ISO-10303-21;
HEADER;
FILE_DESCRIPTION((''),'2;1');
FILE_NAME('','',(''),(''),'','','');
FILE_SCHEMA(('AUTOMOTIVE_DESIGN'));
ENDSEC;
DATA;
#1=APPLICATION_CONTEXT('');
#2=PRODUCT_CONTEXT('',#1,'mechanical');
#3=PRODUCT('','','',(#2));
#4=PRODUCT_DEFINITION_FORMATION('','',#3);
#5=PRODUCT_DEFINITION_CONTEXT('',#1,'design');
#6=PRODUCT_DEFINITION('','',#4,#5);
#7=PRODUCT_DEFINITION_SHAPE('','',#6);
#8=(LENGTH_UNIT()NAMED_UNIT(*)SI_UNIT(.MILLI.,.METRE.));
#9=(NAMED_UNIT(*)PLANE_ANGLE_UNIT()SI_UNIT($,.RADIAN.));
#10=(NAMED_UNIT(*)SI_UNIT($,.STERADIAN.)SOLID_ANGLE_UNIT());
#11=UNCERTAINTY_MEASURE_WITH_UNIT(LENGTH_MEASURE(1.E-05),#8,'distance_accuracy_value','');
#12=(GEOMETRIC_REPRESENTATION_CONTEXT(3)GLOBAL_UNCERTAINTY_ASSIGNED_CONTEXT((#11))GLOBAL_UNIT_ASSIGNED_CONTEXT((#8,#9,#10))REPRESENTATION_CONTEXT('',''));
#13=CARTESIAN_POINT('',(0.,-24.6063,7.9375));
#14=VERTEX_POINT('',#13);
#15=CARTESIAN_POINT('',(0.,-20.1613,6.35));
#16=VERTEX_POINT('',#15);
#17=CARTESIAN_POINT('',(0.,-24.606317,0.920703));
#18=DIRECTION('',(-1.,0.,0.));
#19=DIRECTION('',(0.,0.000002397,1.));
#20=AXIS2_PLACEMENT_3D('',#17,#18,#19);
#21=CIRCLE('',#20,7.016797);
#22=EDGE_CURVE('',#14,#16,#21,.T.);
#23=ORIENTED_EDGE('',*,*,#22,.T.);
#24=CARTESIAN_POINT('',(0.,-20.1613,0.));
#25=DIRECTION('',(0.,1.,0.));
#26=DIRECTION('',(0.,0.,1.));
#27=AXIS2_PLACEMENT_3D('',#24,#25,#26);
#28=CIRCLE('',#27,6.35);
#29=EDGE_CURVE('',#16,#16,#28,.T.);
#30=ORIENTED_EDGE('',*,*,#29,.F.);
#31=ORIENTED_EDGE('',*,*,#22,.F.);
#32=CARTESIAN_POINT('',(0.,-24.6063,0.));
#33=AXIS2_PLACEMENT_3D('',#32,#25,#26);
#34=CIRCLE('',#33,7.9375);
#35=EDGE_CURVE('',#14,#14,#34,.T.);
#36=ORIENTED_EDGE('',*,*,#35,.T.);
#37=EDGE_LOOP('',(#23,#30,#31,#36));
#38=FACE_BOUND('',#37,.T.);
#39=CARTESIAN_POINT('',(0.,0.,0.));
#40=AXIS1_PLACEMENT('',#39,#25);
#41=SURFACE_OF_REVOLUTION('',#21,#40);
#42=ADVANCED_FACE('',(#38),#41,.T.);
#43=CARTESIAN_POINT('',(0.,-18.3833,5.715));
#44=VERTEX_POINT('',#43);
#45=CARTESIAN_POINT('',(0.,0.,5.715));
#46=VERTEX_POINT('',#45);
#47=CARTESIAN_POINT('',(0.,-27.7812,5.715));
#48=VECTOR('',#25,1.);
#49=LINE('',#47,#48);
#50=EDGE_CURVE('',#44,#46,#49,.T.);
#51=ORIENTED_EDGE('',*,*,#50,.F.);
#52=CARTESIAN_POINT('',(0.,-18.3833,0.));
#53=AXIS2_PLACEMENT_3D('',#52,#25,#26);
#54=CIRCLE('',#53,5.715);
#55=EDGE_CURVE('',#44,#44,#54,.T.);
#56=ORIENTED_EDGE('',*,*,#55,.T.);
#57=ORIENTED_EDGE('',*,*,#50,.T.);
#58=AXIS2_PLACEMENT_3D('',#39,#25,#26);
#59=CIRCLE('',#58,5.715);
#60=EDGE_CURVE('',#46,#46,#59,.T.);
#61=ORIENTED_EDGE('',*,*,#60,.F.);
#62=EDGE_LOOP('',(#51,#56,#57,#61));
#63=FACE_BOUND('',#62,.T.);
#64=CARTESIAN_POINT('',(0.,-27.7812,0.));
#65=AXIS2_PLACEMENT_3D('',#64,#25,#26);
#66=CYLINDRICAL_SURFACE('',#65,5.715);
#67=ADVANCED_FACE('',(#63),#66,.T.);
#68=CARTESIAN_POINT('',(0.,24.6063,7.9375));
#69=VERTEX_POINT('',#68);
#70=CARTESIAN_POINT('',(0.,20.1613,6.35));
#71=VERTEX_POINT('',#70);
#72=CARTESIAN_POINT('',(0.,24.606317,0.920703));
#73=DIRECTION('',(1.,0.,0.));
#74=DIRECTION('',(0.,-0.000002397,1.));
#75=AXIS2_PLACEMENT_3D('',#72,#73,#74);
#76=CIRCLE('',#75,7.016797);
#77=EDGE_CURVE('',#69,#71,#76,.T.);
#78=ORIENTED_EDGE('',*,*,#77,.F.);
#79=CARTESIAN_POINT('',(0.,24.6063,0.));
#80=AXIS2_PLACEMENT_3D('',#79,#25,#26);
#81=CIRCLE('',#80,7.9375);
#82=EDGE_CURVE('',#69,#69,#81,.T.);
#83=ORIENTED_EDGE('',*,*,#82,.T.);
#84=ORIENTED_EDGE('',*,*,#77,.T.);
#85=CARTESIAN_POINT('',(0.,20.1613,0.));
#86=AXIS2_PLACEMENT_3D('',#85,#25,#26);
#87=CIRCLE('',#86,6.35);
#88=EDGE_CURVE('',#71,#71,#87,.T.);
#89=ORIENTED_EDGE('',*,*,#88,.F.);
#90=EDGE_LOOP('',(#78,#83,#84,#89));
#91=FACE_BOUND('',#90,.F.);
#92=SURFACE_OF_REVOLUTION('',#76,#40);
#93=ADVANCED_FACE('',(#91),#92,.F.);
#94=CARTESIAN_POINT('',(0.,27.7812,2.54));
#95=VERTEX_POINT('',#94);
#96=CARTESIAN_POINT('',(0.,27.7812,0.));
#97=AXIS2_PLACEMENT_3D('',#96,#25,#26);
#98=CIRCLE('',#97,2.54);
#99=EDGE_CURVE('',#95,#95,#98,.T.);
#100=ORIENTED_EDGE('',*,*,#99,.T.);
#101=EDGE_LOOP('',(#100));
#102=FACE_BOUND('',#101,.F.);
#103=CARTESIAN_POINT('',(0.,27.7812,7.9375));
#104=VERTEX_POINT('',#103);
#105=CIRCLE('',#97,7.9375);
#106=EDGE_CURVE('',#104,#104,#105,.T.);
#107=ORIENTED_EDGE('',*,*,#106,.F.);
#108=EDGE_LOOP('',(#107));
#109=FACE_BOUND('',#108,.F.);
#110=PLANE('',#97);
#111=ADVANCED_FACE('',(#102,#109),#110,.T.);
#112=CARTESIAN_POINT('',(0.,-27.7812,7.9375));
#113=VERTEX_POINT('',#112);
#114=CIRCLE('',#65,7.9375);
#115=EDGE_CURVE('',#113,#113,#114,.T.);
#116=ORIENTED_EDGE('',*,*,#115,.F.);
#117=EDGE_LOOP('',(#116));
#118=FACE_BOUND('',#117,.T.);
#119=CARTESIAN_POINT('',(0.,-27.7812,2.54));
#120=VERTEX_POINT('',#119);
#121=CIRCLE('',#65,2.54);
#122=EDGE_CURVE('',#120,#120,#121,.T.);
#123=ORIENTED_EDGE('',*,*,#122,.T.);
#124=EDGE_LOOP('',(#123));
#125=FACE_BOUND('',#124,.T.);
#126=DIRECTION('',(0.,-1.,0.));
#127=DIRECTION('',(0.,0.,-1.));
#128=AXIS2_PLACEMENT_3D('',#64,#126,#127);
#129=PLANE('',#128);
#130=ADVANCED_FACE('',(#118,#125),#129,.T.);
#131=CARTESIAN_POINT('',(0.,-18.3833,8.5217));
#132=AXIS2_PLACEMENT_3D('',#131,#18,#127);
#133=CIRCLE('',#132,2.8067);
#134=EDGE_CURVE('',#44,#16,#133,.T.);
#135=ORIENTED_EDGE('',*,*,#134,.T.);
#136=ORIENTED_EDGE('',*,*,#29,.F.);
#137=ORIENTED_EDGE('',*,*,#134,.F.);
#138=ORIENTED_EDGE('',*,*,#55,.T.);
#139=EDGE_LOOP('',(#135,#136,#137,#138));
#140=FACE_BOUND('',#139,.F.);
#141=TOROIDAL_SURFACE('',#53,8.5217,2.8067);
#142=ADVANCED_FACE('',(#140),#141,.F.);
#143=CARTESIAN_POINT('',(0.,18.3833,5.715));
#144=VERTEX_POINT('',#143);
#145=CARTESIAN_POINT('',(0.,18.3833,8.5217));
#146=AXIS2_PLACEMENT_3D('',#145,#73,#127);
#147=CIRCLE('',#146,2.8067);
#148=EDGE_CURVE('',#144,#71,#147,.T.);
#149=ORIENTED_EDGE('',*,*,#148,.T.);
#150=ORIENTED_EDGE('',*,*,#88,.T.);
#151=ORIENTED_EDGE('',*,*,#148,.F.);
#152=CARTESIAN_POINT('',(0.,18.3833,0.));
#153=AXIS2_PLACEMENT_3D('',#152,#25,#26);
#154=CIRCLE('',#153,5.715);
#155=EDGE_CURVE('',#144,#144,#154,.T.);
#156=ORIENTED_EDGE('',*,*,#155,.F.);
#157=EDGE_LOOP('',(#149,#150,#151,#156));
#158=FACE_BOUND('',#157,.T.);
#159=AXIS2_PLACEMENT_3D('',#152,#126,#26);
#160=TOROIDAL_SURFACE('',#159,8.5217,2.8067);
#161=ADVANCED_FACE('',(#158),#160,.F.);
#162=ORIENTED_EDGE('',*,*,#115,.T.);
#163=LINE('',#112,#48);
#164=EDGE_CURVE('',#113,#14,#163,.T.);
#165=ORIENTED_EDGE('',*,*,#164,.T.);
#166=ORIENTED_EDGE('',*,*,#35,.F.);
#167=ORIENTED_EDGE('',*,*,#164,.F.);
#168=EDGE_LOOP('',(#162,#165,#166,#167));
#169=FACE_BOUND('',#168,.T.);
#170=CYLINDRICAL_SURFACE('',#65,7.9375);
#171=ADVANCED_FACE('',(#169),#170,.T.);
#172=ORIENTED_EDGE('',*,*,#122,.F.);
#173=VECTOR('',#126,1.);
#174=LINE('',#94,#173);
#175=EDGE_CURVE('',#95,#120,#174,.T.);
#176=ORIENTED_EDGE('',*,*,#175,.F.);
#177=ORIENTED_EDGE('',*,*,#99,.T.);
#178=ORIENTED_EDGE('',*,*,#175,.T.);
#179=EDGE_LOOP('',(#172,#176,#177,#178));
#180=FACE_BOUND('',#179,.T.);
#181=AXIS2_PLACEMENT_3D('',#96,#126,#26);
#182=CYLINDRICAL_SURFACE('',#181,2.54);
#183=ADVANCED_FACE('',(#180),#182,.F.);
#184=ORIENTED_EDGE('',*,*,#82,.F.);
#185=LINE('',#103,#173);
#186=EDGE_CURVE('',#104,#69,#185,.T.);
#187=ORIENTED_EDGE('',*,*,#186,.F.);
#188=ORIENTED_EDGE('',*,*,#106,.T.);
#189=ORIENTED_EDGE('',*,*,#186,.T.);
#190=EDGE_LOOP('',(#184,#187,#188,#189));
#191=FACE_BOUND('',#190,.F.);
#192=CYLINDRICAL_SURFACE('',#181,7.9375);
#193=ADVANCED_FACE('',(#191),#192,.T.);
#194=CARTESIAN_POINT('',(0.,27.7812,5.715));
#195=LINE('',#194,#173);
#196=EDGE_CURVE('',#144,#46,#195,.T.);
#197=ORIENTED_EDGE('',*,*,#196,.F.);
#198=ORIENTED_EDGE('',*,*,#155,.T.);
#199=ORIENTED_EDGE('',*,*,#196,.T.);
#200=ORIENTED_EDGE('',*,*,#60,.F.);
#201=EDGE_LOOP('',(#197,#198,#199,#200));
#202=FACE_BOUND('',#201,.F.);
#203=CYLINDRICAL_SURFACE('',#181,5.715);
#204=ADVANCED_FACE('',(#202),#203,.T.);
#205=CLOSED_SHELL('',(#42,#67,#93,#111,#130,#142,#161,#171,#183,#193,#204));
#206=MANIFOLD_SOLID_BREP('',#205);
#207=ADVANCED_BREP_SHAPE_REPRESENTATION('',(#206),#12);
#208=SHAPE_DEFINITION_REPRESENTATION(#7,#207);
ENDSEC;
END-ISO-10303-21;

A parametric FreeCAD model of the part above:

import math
import FreeCAD as App
import Part
import Sketcher
Q = App.Units.Quantity

doc = App.newDocument("Part")
body = doc.addObject("PartDesign::Body", "Body")

# Sketch on YZ plane
sketch1 = doc.addObject("Sketcher::SketchObject", "Sketch")
body.addObject(sketch1)
sketch1.AttachmentSupport = (doc.YZ_Plane, [""])
sketch1.MapMode = "FlatFace"
sketch1.addGeometry(Part.LineSegment(App.Vector(0, 2.5, 0), App.Vector(27.8, 2.5, 0)), False)
sketch1.addGeometry(Part.LineSegment(App.Vector(27.8, 2.5, 0), App.Vector(27.8, 7.9, 0)), False)
sketch1.addGeometry(Part.LineSegment(App.Vector(27.8, 7.9, 0), App.Vector(24.6, 7.9, 0)), False)
sketch1.addGeometry(Part.ArcOfCircle(Part.Circle(App.Vector(24.6, 0.9, 0), App.Vector(0, 0, 1), 7), math.radians(90), math.radians(129)), False)
sketch1.addGeometry(Part.ArcOfCircle(Part.Circle(App.Vector(18.4, 8.5, 0), App.Vector(0, 0, 1), 2.8), math.radians(-90), math.radians(-51)), False)
sketch1.addGeometry(Part.LineSegment(App.Vector(18.4, 5.7, 0), App.Vector(0, 5.7, 0)), False)
sketch1.addGeometry(Part.LineSegment(App.Vector(0, 5.7, 0), App.Vector(0, 2.5, 0)), False)
sketch1.addConstraint(Sketcher.Constraint("Coincident", 0, 2, 1, 1))
sketch1.addConstraint(Sketcher.Constraint("Coincident", 1, 2, 2, 1))
sketch1.addConstraint(Sketcher.Constraint("Tangent", 2, 2, 3, 1))
sketch1.addConstraint(Sketcher.Constraint("Tangent", 3, 2, 4, 2))
sketch1.addConstraint(Sketcher.Constraint("Tangent", 4, 1, 5, 1))
sketch1.addConstraint(Sketcher.Constraint("Coincident", 5, 2, 6, 1))
sketch1.addConstraint(Sketcher.Constraint("Coincident", 6, 2, 0, 1))
sketch1.addConstraint(Sketcher.Constraint("Horizontal", 0))
sketch1.addConstraint(Sketcher.Constraint("Vertical", 1))
sketch1.addConstraint(Sketcher.Constraint("Horizontal", 2))
sketch1.addConstraint(Sketcher.Constraint("Horizontal", 5))
sketch1.addConstraint(Sketcher.Constraint("Vertical", 6))
sketch1.addConstraint(Sketcher.Constraint("PointOnObject", 5, 2, -2))
sketch1.addConstraint(Sketcher.Constraint("Equal", 2, 6))
sketch1.addConstraint(Sketcher.Constraint("DistanceY", -1, 1, 0, 2, Q("0.1 in")))
sketch1.addConstraint(Sketcher.Constraint("DistanceX", 3, 2, 1, 2, Q("0.3 in")))
sketch1.addConstraint(Sketcher.Constraint("DistanceX", 0, 1, 0, 2, Q("1.093748 in")))
sketch1.addConstraint(Sketcher.Constraint("DistanceX", 2, 2, 2, 1, Q("0.125 in")))
sketch1.addConstraint(Sketcher.Constraint("DistanceY", -1, 1, 1, 2, Q("0.3125 in")))
sketch1.addConstraint(Sketcher.Constraint("DistanceY", 3, 2, 2, 2, Q("0.0625 in")))
revolution = doc.addObject("PartDesign::Revolution", "Revolution")
body.addObject(revolution)
revolution.Profile = sketch1
revolution.ReferenceAxis = (sketch1, ["H_Axis"])
revolution.Angle = 360
doc.recompute()

mirrored = doc.addObject("PartDesign::Mirrored", "Mirrored")
body.addObject(mirrored)
mirrored.Originals = [revolution]
mirrored.MirrorPlane = (doc.XZ_Plane, [""])
body.Tip = mirrored

doc.recompute()
